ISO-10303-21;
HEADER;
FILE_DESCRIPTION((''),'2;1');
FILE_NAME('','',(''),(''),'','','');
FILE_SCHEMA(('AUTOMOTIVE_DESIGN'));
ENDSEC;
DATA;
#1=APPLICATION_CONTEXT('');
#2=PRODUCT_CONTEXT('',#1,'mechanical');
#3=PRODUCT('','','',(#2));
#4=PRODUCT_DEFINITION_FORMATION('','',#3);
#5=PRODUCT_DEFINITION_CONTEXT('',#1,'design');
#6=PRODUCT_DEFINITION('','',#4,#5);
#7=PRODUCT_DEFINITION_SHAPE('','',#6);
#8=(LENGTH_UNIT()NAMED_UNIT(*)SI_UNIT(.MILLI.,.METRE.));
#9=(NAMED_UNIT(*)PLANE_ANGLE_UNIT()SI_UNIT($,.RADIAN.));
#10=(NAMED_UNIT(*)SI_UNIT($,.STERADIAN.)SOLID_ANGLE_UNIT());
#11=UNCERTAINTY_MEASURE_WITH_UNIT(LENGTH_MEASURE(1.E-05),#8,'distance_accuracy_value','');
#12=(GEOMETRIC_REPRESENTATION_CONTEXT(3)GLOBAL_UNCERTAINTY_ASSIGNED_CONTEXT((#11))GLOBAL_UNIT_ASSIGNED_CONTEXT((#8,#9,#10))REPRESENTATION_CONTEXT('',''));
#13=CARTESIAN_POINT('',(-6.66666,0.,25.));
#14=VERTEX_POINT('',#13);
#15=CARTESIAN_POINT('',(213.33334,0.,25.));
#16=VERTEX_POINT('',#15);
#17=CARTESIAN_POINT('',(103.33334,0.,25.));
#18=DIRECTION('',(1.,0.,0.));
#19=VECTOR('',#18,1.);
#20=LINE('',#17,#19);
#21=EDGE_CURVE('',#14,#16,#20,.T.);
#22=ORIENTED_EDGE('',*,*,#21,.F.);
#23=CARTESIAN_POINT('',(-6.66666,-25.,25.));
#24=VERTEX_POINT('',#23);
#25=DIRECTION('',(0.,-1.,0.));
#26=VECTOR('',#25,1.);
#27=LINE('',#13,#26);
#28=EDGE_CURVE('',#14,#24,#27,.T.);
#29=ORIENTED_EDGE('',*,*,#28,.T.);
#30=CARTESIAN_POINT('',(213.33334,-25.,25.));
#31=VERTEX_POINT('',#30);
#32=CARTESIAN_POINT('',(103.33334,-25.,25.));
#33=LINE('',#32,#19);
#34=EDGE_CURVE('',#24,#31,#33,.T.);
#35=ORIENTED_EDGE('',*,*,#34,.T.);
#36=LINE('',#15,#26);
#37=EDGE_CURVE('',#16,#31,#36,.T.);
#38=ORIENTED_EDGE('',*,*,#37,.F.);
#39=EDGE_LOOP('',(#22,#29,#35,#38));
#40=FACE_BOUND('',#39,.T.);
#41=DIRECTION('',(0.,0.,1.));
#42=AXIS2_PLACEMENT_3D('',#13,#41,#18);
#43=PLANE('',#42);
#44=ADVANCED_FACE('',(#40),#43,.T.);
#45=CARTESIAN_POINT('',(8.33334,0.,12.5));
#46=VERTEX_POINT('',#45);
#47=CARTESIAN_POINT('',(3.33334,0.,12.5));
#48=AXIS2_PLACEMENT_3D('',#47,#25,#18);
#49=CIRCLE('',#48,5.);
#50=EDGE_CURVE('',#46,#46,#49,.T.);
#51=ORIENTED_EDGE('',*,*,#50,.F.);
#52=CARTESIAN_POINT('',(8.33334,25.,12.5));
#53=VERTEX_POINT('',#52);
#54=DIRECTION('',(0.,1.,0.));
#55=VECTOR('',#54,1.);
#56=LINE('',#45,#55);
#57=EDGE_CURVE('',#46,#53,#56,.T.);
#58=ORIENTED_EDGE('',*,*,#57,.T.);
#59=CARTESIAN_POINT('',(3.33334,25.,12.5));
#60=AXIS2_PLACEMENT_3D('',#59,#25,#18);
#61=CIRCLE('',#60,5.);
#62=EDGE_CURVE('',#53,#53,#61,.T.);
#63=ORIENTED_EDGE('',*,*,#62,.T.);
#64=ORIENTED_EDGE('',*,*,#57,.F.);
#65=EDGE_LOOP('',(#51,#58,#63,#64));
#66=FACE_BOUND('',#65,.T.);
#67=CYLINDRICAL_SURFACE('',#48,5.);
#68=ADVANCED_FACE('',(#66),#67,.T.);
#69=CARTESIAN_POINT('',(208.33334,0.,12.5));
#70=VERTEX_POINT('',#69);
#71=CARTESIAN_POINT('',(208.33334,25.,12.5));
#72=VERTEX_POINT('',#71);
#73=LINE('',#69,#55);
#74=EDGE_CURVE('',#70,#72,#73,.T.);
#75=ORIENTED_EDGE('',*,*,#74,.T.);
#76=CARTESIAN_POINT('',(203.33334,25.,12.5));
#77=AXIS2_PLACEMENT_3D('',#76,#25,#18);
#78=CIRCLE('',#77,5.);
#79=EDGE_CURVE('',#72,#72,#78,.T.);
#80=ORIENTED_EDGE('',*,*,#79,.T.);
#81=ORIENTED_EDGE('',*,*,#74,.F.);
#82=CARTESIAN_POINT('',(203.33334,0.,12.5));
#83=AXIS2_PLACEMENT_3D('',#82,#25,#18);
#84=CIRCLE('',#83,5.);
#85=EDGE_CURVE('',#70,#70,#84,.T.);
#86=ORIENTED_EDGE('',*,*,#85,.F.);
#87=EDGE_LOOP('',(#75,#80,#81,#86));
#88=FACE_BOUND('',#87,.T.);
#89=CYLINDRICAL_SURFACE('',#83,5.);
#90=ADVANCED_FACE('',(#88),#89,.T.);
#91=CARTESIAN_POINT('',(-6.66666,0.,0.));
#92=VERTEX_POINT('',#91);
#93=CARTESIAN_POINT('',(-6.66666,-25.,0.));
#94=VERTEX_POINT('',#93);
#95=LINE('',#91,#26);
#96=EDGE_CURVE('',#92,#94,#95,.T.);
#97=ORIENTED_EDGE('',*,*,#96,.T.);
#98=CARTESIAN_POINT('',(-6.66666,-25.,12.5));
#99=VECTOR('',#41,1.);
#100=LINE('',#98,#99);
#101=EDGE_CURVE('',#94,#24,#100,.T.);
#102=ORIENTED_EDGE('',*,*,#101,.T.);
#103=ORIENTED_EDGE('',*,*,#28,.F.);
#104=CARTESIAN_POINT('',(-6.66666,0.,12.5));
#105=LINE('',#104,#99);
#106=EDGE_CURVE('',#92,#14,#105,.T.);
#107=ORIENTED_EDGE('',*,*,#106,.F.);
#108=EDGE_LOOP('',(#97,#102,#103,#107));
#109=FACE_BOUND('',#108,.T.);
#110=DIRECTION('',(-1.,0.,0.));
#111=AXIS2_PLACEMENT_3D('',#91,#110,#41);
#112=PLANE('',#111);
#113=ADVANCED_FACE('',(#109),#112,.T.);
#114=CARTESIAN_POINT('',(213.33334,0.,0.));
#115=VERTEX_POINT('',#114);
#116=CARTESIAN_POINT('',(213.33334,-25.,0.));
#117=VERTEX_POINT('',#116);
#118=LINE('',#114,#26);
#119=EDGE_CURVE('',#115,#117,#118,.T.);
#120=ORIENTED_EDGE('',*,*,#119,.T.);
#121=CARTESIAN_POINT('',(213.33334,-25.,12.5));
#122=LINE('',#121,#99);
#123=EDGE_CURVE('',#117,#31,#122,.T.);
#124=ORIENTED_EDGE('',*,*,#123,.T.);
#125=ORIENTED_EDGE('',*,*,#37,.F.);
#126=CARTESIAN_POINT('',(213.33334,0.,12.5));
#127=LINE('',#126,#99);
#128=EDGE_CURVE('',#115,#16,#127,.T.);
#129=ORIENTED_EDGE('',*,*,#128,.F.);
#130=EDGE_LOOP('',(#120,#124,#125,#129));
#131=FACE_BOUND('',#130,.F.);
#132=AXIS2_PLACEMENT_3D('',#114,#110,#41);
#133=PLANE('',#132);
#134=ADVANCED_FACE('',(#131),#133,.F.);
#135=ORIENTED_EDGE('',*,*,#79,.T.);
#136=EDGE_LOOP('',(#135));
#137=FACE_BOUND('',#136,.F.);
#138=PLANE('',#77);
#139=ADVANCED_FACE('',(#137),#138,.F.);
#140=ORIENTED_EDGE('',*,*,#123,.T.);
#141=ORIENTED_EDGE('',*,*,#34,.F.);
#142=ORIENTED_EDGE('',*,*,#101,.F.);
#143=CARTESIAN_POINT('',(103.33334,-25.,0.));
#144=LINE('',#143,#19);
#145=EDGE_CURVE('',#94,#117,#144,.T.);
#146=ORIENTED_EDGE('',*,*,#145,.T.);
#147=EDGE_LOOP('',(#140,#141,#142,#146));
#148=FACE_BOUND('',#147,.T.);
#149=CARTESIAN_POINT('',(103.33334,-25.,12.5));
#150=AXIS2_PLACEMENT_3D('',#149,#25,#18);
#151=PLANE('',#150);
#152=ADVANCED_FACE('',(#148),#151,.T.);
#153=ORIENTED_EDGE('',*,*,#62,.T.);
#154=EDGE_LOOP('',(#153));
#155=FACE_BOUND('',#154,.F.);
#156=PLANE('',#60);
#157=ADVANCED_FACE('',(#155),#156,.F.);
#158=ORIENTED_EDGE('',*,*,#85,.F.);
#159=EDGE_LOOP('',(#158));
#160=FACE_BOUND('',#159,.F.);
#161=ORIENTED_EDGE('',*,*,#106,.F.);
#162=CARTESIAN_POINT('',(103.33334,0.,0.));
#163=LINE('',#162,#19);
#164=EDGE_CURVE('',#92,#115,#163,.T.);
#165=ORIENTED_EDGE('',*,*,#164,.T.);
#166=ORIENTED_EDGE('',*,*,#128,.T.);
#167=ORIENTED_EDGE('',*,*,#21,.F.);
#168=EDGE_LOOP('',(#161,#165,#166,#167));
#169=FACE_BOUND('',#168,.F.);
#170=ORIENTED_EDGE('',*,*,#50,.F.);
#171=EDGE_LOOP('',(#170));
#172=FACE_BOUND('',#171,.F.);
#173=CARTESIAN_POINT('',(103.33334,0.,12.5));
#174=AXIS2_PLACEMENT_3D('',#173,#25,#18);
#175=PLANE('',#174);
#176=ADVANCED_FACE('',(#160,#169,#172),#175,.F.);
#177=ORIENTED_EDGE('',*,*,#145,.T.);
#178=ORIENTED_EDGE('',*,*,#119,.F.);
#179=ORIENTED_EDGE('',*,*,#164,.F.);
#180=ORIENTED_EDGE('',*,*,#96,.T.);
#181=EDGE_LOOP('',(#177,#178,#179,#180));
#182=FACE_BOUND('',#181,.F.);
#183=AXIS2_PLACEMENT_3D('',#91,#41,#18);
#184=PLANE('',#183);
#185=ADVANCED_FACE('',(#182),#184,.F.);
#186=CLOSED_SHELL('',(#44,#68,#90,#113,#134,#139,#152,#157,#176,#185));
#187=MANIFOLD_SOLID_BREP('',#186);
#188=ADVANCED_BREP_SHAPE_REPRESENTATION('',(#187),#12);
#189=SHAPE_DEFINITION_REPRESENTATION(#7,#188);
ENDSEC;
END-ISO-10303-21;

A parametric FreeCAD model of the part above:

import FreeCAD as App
import Part
import Sketcher

V = App.Vector

doc = App.newDocument("Part")
body = doc.addObject("PartDesign::Body", "Body")

sketch1 = body.newObject("Sketcher::SketchObject", "Sketch")
sketch1.AttachmentSupport = (doc.getObject("XZ_Plane"), [""])
sketch1.MapMode = "FlatFace"
sketch1.addGeometry([
    Part.LineSegment(V(-7, 25, 0), V(-7, 0, 0)),
    Part.LineSegment(V(-7, 0, 0), V(213, 0, 0)),
    Part.LineSegment(V(213, 0, 0), V(213, 25, 0)),
    Part.LineSegment(V(213, 25, 0), V(-7, 25, 0)),
], False)
sketch1.addConstraint([
    Sketcher.Constraint("Coincident", 0, 2, 1, 1),
    Sketcher.Constraint("Coincident", 1, 2, 2, 1),
    Sketcher.Constraint("Coincident", 2, 2, 3, 1),
    Sketcher.Constraint("Coincident", 3, 2, 0, 1),
    Sketcher.Constraint("Vertical", 0),
    Sketcher.Constraint("Horizontal", 1),
    Sketcher.Constraint("Vertical", 2),
    Sketcher.Constraint("Horizontal", 3),
    Sketcher.Constraint("PointOnObject", 0, 2, -1),
    Sketcher.Constraint("DistanceX", 1, 1, 1, 2, 220.0),
    Sketcher.Constraint("DistanceY", 0, 2, 0, 1, 25.0),
    Sketcher.Constraint("DistanceX", 0, 2, -1, 1, 6.66666),
])
pad1 = body.newObject("PartDesign::Pad", "Pad")
pad1.Profile = sketch1
pad1.Length = 25

sketch2 = body.newObject("Sketcher::SketchObject", "Sketch001")
sketch2.AttachmentSupport = (doc.getObject("XZ_Plane"), [""])
sketch2.MapMode = "FlatFace"
sketch2.addGeometry([
    Part.Circle(V(3, 12, 0), V(0, 0, 1), 5),
    Part.Circle(V(203, 12, 0), V(0, 0, 1), 5),
], False)
sketch2.addConstraint([
    Sketcher.Constraint("Equal", 0, 1),
    Sketcher.Constraint("Horizontal", 0, 3, 1, 3),
    Sketcher.Constraint("Diameter", 0, 10.0),
    Sketcher.Constraint("DistanceX", 0, 3, 1, 3, 200.0),
    Sketcher.Constraint("DistanceY", -1, 1, 0, 3, 12.5),
    Sketcher.Constraint("DistanceX", -1, 1, 0, 3, 3.33334),
])
pad2 = body.newObject("PartDesign::Pad", "Pad001")
pad2.Profile = sketch2
pad2.Length = 25
pad2.Reversed = True

doc.recompute()
